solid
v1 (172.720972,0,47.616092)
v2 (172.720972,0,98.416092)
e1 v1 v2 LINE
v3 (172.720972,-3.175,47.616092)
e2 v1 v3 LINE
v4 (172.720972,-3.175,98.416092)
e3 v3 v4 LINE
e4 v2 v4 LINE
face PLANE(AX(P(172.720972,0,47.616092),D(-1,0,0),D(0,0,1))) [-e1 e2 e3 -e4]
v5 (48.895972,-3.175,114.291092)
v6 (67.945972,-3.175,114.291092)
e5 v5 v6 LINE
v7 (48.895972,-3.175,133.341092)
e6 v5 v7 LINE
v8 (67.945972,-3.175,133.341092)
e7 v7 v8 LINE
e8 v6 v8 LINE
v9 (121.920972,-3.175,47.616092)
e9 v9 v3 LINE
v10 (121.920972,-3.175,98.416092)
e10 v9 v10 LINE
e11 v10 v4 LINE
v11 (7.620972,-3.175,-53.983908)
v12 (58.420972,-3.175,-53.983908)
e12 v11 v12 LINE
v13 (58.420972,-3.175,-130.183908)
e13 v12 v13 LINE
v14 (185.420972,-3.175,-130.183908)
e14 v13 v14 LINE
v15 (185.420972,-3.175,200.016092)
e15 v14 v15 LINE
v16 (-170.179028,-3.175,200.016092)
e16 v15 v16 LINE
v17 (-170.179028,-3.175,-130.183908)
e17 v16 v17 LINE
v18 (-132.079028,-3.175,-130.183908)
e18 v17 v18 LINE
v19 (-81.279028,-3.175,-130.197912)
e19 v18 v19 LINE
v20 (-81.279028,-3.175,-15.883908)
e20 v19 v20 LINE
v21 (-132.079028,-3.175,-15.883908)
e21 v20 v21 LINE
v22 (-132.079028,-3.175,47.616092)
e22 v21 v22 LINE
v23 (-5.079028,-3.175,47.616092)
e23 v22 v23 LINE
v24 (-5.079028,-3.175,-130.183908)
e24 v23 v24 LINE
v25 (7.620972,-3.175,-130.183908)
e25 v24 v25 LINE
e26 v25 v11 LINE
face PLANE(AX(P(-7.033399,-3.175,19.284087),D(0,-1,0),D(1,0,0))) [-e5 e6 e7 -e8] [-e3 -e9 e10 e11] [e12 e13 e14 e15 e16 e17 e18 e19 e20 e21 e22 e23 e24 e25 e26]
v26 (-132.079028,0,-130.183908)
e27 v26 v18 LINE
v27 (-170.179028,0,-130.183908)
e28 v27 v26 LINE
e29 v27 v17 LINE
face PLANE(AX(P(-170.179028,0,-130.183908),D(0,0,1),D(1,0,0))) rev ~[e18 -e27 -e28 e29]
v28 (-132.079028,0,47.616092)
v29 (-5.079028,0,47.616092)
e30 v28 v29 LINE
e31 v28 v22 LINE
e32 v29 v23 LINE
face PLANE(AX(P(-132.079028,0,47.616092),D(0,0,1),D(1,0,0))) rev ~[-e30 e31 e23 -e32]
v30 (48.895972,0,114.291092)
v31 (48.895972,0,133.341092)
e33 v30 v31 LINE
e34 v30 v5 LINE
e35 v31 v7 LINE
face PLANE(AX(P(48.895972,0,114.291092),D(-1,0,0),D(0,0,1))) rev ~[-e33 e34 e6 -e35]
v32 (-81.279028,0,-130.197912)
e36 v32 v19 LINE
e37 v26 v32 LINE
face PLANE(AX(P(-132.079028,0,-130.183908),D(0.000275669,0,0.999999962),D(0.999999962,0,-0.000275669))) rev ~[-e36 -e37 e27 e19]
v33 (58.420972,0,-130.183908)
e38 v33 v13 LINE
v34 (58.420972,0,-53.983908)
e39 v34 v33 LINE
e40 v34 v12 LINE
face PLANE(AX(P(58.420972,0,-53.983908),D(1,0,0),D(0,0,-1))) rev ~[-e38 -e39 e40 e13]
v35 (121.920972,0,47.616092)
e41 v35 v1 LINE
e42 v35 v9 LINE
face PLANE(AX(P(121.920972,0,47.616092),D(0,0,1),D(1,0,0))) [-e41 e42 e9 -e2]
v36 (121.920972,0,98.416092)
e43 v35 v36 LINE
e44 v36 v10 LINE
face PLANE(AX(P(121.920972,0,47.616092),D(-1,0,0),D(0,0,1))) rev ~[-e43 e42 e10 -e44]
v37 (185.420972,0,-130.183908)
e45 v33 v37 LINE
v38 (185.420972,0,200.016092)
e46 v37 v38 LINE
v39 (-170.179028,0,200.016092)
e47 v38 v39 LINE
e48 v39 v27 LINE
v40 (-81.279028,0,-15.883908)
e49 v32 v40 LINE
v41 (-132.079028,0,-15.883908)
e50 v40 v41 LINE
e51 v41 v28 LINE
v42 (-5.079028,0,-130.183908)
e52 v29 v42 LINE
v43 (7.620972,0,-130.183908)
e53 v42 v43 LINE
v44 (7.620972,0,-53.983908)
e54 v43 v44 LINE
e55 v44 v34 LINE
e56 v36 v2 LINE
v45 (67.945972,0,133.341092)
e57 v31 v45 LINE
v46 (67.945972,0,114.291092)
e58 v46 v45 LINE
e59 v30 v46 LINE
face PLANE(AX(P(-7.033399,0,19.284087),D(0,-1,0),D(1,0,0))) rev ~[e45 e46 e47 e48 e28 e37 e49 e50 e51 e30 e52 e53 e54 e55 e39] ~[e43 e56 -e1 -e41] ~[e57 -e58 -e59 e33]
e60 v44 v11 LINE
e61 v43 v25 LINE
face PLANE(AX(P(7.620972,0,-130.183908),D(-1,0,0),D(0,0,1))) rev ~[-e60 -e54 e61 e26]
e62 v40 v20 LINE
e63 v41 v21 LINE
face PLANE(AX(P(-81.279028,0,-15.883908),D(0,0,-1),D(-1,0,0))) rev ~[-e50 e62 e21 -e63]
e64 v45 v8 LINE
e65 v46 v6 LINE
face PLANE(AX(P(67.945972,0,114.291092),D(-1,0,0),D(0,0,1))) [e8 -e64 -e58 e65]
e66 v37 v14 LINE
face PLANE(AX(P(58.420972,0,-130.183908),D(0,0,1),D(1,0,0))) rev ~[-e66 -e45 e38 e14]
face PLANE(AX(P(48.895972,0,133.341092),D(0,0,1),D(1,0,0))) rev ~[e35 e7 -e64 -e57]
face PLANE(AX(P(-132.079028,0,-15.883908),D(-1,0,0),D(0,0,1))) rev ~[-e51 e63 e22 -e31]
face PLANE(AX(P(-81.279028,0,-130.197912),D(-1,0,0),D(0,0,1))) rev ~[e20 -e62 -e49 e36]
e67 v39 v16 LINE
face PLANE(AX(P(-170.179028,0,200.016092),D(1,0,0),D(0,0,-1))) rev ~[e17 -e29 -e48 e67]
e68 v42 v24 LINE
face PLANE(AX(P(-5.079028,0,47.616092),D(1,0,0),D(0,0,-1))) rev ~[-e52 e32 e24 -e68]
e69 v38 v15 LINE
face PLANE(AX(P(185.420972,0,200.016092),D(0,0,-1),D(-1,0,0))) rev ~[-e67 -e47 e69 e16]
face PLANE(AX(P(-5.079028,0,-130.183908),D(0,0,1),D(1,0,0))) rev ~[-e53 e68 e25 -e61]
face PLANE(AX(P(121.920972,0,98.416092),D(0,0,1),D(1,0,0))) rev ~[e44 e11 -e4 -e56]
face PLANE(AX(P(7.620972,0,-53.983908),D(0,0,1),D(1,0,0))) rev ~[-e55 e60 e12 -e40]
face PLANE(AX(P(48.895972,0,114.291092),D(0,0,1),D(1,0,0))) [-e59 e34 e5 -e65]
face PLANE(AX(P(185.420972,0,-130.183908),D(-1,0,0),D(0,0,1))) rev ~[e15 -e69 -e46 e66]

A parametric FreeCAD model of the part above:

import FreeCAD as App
import Part
import Sketcher
from FreeCAD import Vector
Q = App.Units.Quantity

doc = App.newDocument("Part")
body = doc.addObject("PartDesign::Body", "Body")

sketch1 = body.newObject("Sketcher::SketchObject", "Sketch")
sketch1.AttachmentSupport = (doc.getObject("XZ_Plane"), [""])
sketch1.MapMode = "FlatFace"
sketch1.addGeometry([
    Part.LineSegment(Vector(185.420972, 200.016092, 0), Vector(-170.179028, 200.016092, 0)),
    Part.LineSegment(Vector(-170.179028, 200.016092, 0), Vector(-170.179028, -130.183908, 0)),
    Part.LineSegment(Vector(-170.179028, -130.183908, 0), Vector(-132.079028, -130.183908, 0)),
    Part.LineSegment(Vector(-132.079028, -130.183908, 0), Vector(-81.279028, -130.197912, 0)),
    Part.LineSegment(Vector(-81.279028, -130.197912, 0), Vector(-81.279028, -15.883908, 0)),
    Part.LineSegment(Vector(-81.279028, -15.883908, 0), Vector(-132.079028, -15.883908, 0)),
    Part.LineSegment(Vector(-132.079028, -15.883908, 0), Vector(-132.079028, 47.616092, 0)),
    Part.LineSegment(Vector(-132.079028, 47.616092, 0), Vector(-5.079028, 47.616092, 0)),
    Part.LineSegment(Vector(-5.079028, 47.616092, 0), Vector(-5.079028, -130.183908, 0)),
    Part.LineSegment(Vector(-5.079028, -130.183908, 0), Vector(7.620972, -130.183908, 0)),
    Part.LineSegment(Vector(7.620972, -130.183908, 0), Vector(7.620972, -53.983908, 0)),
    Part.LineSegment(Vector(7.620972, -53.983908, 0), Vector(58.420972, -53.983908, 0)),
    Part.LineSegment(Vector(58.420972, -53.983908, 0), Vector(58.420972, -130.183908, 0)),
    Part.LineSegment(Vector(58.420972, -130.183908, 0), Vector(185.420972, -130.183908, 0)),
    Part.LineSegment(Vector(185.420972, -130.183908, 0), Vector(185.420972, 200.016092, 0)),
    Part.LineSegment(Vector(172.720972, 47.616092, 0), Vector(121.920972, 47.616092, 0)),
    Part.LineSegment(Vector(121.920972, 47.616092, 0), Vector(121.920972, 98.416092, 0)),
    Part.LineSegment(Vector(121.920972, 98.416092, 0), Vector(172.720972, 98.416092, 0)),
    Part.LineSegment(Vector(172.720972, 98.416092, 0), Vector(172.720972, 47.616092, 0)),
    Part.LineSegment(Vector(67.945972, 114.291092, 0), Vector(48.895972, 114.291092, 0)),
    Part.LineSegment(Vector(48.895972, 114.291092, 0), Vector(48.895972, 133.341092, 0)),
    Part.LineSegment(Vector(48.895972, 133.341092, 0), Vector(67.945972, 133.341092, 0)),
    Part.LineSegment(Vector(67.945972, 133.341092, 0), Vector(67.945972, 114.291092, 0)),
], False)
sketch1.addConstraint([
    Sketcher.Constraint("Coincident", 0, 2, 1, 1),
    Sketcher.Constraint("Coincident", 1, 2, 2, 1),
    Sketcher.Constraint("Coincident", 2, 2, 3, 1),
    Sketcher.Constraint("Coincident", 3, 2, 4, 1),
    Sketcher.Constraint("Coincident", 4, 2, 5, 1),
    Sketcher.Constraint("Coincident", 5, 2, 6, 1),
    Sketcher.Constraint("Coincident", 6, 2, 7, 1),
    Sketcher.Constraint("Coincident", 7, 2, 8, 1),
    Sketcher.Constraint("Coincident", 8, 2, 9, 1),
    Sketcher.Constraint("Coincident", 9, 2, 10, 1),
    Sketcher.Constraint("Coincident", 10, 2, 11, 1),
    Sketcher.Constraint("Coincident", 11, 2, 12, 1),
    Sketcher.Constraint("Coincident", 12, 2, 13, 1),
    Sketcher.Constraint("Coincident", 13, 2, 14, 1),
    Sketcher.Constraint("Coincident", 14, 2, 0, 1),
    Sketcher.Constraint("Coincident", 15, 2, 16, 1),
    Sketcher.Constraint("Coincident", 16, 2, 17, 1),
    Sketcher.Constraint("Coincident", 17, 2, 18, 1),
    Sketcher.Constraint("Coincident", 18, 2, 15, 1),
    Sketcher.Constraint("Coincident", 19, 2, 20, 1),
    Sketcher.Constraint("Coincident", 20, 2, 21, 1),
    Sketcher.Constraint("Coincident", 21, 2, 22, 1),
    Sketcher.Constraint("Coincident", 22, 2, 19, 1),
    Sketcher.Constraint("Horizontal", 0),
    Sketcher.Constraint("Vertical", 1),
    Sketcher.Constraint("Horizontal", 2),
    Sketcher.Constraint("Vertical", 4),
    Sketcher.Constraint("Horizontal", 5),
    Sketcher.Constraint("Vertical", 6),
    Sketcher.Constraint("Horizontal", 7),
    Sketcher.Constraint("Vertical", 8),
    Sketcher.Constraint("Horizontal", 9),
    Sketcher.Constraint("Vertical", 10),
    Sketcher.Constraint("Horizontal", 11),
    Sketcher.Constraint("Vertical", 12),
    Sketcher.Constraint("Horizontal", 13),
    Sketcher.Constraint("Vertical", 14),
    Sketcher.Constraint("Horizontal", 15),
    Sketcher.Constraint("Vertical", 16),
    Sketcher.Constraint("Horizontal", 17),
    Sketcher.Constraint("Vertical", 18),
    Sketcher.Constraint("Horizontal", 19),
    Sketcher.Constraint("Vertical", 20),
    Sketcher.Constraint("Horizontal", 21),
    Sketcher.Constraint("Vertical", 22),
    Sketcher.Constraint("Horizontal", 2, 2, 8, 2),
    Sketcher.Constraint("Horizontal", 9, 2, 12, 2),
    Sketcher.Constraint("Horizontal", 7, 2, 15, 2),
    Sketcher.Constraint("Vertical", 2, 2, 5, 2),
    Sketcher.Constraint("Equal", 5, 11),
    Sketcher.Constraint("Equal", 7, 13),
    Sketcher.Constraint("Equal", 11, 15),
    Sketcher.Constraint("Equal", 17, 16),
    Sketcher.Constraint("Equal", 21, 20),
    Sketcher.Constraint("DistanceX", 0, 2, 0, 1, Q("14 in")),
    Sketcher.Constraint("DistanceX", 5, 2, 5, 1, Q("2 in")),
    Sketcher.Constraint("DistanceX", 7, 1, 7, 2, Q("5 in")),
    Sketcher.Constraint("DistanceY", 1, 2, 1, 1, Q("13 in")),
    Sketcher.Constraint("DistanceY", 8, 2, 8, 1, Q("7 in")),
    Sketcher.Constraint("DistanceY", 10, 1, 10, 2, Q("3 in")),
    Sketcher.Constraint("DistanceX", 2, 1, 2, 2, Q("1.5 in")),
    Sketcher.Constraint("DistanceY", 6, 1, 6, 2, Q("2.5 in")),
    Sketcher.Constraint("DistanceX", 7, 2, 15, 2, Q("5 in")),
    Sketcher.Constraint("DistanceX", 19, 2, 19, 1, Q("0.75 in")),
    Sketcher.Constraint("DistanceX", 19, 2, 16, 2, Q("2.875 in")),
    Sketcher.Constraint("DistanceY", 16, 2, 19, 2, Q("0.625 in")),
    Sketcher.Constraint("DistanceY", 4, 1, 4, 2, Q("114.314004 mm")),
    Sketcher.Constraint("DistanceY", -1, 1, 0, 2, Q("200.016092 mm")),
    Sketcher.Constraint("DistanceX", 2, 2, -1, 1, Q("132.079028 mm")),
])
pad1 = body.newObject("PartDesign::Pad", "Pad")
pad1.Profile = sketch1
pad1.Length = Q("0.125 in")

doc.recompute()
